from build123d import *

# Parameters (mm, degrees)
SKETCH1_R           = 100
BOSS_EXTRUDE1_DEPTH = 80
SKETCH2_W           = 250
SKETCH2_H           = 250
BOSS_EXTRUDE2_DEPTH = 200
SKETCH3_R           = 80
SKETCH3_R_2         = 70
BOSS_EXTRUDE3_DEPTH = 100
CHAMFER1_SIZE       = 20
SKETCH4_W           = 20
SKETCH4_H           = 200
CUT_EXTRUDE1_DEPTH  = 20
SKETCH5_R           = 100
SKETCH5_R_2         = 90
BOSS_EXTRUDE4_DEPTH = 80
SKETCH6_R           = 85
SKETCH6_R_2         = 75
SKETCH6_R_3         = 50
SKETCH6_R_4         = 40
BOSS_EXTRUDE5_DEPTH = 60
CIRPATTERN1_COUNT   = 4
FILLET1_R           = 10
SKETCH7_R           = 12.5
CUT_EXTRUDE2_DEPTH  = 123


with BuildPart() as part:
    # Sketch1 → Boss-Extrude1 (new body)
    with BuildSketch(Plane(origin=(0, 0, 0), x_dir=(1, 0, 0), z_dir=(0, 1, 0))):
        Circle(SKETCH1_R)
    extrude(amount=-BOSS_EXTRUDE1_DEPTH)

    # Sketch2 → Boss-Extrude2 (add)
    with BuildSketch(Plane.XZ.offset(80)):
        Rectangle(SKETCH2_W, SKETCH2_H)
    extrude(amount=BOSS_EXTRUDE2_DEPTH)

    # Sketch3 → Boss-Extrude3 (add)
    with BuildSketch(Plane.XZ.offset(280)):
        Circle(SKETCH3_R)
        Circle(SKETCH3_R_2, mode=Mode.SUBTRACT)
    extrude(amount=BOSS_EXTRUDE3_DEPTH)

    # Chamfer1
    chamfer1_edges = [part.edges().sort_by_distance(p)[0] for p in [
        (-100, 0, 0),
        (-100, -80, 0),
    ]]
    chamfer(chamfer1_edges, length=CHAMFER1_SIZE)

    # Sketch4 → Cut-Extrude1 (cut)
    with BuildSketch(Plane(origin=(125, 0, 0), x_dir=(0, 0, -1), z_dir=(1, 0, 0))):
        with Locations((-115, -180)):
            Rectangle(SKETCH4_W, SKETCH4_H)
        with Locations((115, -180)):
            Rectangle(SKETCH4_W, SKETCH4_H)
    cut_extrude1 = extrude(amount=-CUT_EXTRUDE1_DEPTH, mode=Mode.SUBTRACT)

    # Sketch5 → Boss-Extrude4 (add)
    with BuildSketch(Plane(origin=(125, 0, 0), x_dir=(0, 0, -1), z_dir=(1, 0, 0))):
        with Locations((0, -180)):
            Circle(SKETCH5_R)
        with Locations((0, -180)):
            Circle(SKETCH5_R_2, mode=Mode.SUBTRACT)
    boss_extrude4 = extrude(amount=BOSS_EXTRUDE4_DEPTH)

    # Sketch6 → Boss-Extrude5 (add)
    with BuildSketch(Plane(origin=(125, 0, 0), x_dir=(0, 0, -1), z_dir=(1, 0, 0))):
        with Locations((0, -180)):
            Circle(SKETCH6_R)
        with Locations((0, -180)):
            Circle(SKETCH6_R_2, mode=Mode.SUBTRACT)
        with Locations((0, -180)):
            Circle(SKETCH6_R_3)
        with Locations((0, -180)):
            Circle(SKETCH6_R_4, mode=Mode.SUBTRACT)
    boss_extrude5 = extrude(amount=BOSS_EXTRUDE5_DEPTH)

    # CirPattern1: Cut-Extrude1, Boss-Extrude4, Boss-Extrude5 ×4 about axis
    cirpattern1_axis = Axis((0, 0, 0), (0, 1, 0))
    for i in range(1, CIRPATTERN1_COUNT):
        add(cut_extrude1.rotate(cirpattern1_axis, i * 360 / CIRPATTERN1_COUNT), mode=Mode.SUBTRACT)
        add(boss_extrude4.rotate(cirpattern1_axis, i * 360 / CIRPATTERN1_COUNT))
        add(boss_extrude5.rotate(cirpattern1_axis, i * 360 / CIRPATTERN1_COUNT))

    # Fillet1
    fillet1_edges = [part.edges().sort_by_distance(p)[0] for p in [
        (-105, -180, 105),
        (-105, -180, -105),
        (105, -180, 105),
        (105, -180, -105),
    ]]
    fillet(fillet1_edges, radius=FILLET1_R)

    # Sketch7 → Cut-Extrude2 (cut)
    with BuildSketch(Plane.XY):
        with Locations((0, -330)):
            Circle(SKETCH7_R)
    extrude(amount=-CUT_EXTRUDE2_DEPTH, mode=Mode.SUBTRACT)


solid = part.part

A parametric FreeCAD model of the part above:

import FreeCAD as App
import Part
import Sketcher
from FreeCAD import Vector


def edges_at(feature, points):
    """Names of the edges that pass closest to the given points."""
    edges = feature.Shape.Edges
    near = lambda p: min(range(len(edges)), key=lambda i: edges[i].distToShape(Part.Vertex(*p))[0])
    return sorted({f"Edge{near(p) + 1}" for p in points})


def add_polygon(sketch, points):
    """Adds a closed chain of lines whose ends are joined by coincident constraints."""
    first, n = sketch.GeometryCount, len(points)
    for a, b in zip(points, points[1:] + points[:1]):
        sketch.addGeometry(Part.LineSegment(App.Vector(*a, 0), App.Vector(*b, 0)), False)
    for i in range(n):
        sketch.addConstraint(Sketcher.Constraint("Coincident", first + i, 2, first + (i + 1) % n, 1))

doc = App.newDocument("Part")
params = doc.addObject("Spreadsheet::Sheet", "Params")
for row, (alias, value) in enumerate([
    ("sketch1_diameter", "200 mm"),
    ("pad1_length", "80 mm"),
    ("sketch2_width", "250 mm"),
    ("pad2_length", "200 mm"),
    ("sketch3_diameter", "160 mm"),
    ("sketch3_diameter2", "140 mm"),
    ("pad3_length", "100 mm"),
    ("chamfer_size", "20 mm"),
    ("sketch4_width", "200 mm"),
    ("sketch4_height", "20 mm"),
    ("pocket1_length", "20 mm"),
    ("sketch5_diameter", "200 mm"),
    ("sketch5_diameter2", "180 mm"),
    ("pad4_length", "80 mm"),
    ("sketch6_diameter", "170 mm"),
    ("sketch6_diameter2", "150 mm"),
    ("sketch6_diameter3", "100 mm"),
    ("sketch6_diameter4", "80 mm"),
    ("pad5_length", "60 mm"),
    ("fillet_radius", "10 mm"),
    ("sketch7_diameter", "25 mm"),
    ("pocket2_length", "123 mm"),
], start=1):
    params.set(f"A{row}", alias)
    params.set(f"B{row}", "=" + value)
    params.setAlias(f"B{row}", alias)

body = doc.addObject("PartDesign::Body", "Body")

# Sketch on XZ plane
sketch1 = doc.addObject("Sketcher::SketchObject", "Sketch")
body.addObject(sketch1)
sketch1.AttachmentSupport = (doc.XZ_Plane, [""])
sketch1.MapMode = "FlatFace"
sketch1.addGeometry(Part.Circle(Vector(0, 0, 0), Vector(0, 0, 1), 100), False)
sketch1.addConstraint(Sketcher.Constraint("Coincident", 0, 3, -1, 1))
sketch1.addConstraint(Sketcher.Constraint("Diameter", 0, 200.0))
sketch1.setExpression("Constraints[1]", "Params.sketch1_diameter")
pad1 = doc.addObject("PartDesign::Pad", "Pad")
body.addObject(pad1)
pad1.Profile = sketch1
pad1.setExpression("Length", "Params.pad1_length")

# Sketch on XZ plane
sketch2 = doc.addObject("Sketcher::SketchObject", "Sketch001")
body.addObject(sketch2)
sketch2.AttachmentSupport = (doc.XZ_Plane, [""])
sketch2.MapMode = "FlatFace"
sketch2.AttachmentOffset = App.Placement(Vector(0, 0, 80), App.Rotation())
add_polygon(sketch2, [(-125, 125), (-125, -125), (125, -125), (125, 125)])  # lines 0-3
sketch2.addConstraint(Sketcher.Constraint("Vertical", 0))
sketch2.addConstraint(Sketcher.Constraint("Horizontal", 1))
sketch2.addConstraint(Sketcher.Constraint("Vertical", 2))
sketch2.addConstraint(Sketcher.Constraint("Horizontal", 3))
sketch2.addConstraint(Sketcher.Constraint("Symmetric", 0, 2, 2, 2, -1, 1))
sketch2.addConstraint(Sketcher.Constraint("Equal", 3, 0))
sketch2.addConstraint(Sketcher.Constraint("DistanceX", 1, 1, 1, 2, 250.0))
sketch2.setExpression("Constraints[10]", "Params.sketch2_width")
pad2 = doc.addObject("PartDesign::Pad", "Pad001")
body.addObject(pad2)
pad2.Profile = sketch2
pad2.setExpression("Length", "Params.pad2_length")

# Sketch on XZ plane
sketch3 = doc.addObject("Sketcher::SketchObject", "Sketch002")
body.addObject(sketch3)
sketch3.AttachmentSupport = (doc.XZ_Plane, [""])
sketch3.MapMode = "FlatFace"
sketch3.AttachmentOffset = App.Placement(Vector(0, 0, 280), App.Rotation())
sketch3.addGeometry(Part.Circle(Vector(0, 0, 0), Vector(0, 0, 1), 80), False)
sketch3.addGeometry(Part.Circle(Vector(0, 0, 0), Vector(0, 0, 1), 70), False)
sketch3.addConstraint(Sketcher.Constraint("Coincident", 0, 3, -1, 1))
sketch3.addConstraint(Sketcher.Constraint("Coincident", 1, 3, -1, 1))
sketch3.addConstraint(Sketcher.Constraint("Diameter", 0, 160.0))
sketch3.addConstraint(Sketcher.Constraint("Diameter", 1, 140.0))
sketch3.setExpression("Constraints[2]", "Params.sketch3_diameter")
sketch3.setExpression("Constraints[3]", "Params.sketch3_diameter2")
pad3 = doc.addObject("PartDesign::Pad", "Pad002")
body.addObject(pad3)
pad3.Profile = sketch3
pad3.setExpression("Length", "Params.pad3_length")
doc.recompute()

chamfer = doc.addObject("PartDesign::Chamfer", "Chamfer")
body.addObject(chamfer)
chamfer.Base = (pad3, edges_at(pad3, [(-100, 0, 0), (-100, -80, 0)]))
chamfer.setExpression("Size", "Params.chamfer_size")

# Sketch on YZ plane
sketch4 = doc.addObject("Sketcher::SketchObject", "Sketch003")
body.addObject(sketch4)
sketch4.AttachmentSupport = (doc.YZ_Plane, [""])
sketch4.MapMode = "FlatFace"
sketch4.AttachmentOffset = App.Placement(Vector(0, 0, 125), App.Rotation())
add_polygon(sketch4, [(-80, 125), (-280, 125), (-280, 105), (-80, 105)])  # lines 0-3
add_polygon(sketch4, [(-80, -105), (-280, -105), (-280, -125), (-80, -125)])  # lines 4-7
sketch4.addConstraint(Sketcher.Constraint("Horizontal", 0))
sketch4.addConstraint(Sketcher.Constraint("Vertical", 1))
sketch4.addConstraint(Sketcher.Constraint("Horizontal", 2))
sketch4.addConstraint(Sketcher.Constraint("Vertical", 3))
sketch4.addConstraint(Sketcher.Constraint("Horizontal", 4))
sketch4.addConstraint(Sketcher.Constraint("Vertical", 5))
sketch4.addConstraint(Sketcher.Constraint("Horizontal", 6))
sketch4.addConstraint(Sketcher.Constraint("Vertical", 7))
sketch4.addConstraint(Sketcher.Constraint("Symmetric", 1, 2, 4, 2, -1))
sketch4.addConstraint(Sketcher.Constraint("Symmetric", 3, 2, 6, 2, -1))
sketch4.addConstraint(Sketcher.Constraint("DistanceX", 0, 2, 0, 1, 200.0))
sketch4.addConstraint(Sketcher.Constraint("DistanceY", 1, 2, 1, 1, 20.0))
sketch4.addConstraint(Sketcher.Constraint("DistanceX", 0, 2, -1, 1, 280.0))
sketch4.addConstraint(Sketcher.Constraint("DistanceY", -1, 1, 0, 2, 125.0))
sketch4.setExpression("Constraints[18]", "Params.sketch4_width")
sketch4.setExpression("Constraints[19]", "Params.sketch4_height")
pocket1 = doc.addObject("PartDesign::Pocket", "Pocket")
body.addObject(pocket1)
pocket1.Profile = sketch4
pocket1.setExpression("Length", "Params.pocket1_length")

# Sketch on YZ plane
sketch5 = doc.addObject("Sketcher::SketchObject", "Sketch004")
body.addObject(sketch5)
sketch5.AttachmentSupport = (doc.YZ_Plane, [""])
sketch5.MapMode = "FlatFace"
sketch5.AttachmentOffset = App.Placement(Vector(0, 0, 125), App.Rotation())
sketch5.addGeometry(Part.Circle(Vector(-180, 0, 0), Vector(0, 0, 1), 100), False)
sketch5.addGeometry(Part.Circle(Vector(-180, 0, 0), Vector(0, 0, 1), 90), False)
sketch5.addConstraint(Sketcher.Constraint("Coincident", 1, 3, 0, 3))
sketch5.addConstraint(Sketcher.Constraint("PointOnObject", 0, 3, -1))
sketch5.addConstraint(Sketcher.Constraint("Diameter", 0, 200.0))
sketch5.addConstraint(Sketcher.Constraint("Diameter", 1, 180.0))
sketch5.addConstraint(Sketcher.Constraint("DistanceX", 0, 3, -1, 1, 180.0))
sketch5.setExpression("Constraints[2]", "Params.sketch5_diameter")
sketch5.setExpression("Constraints[3]", "Params.sketch5_diameter2")
pad4 = doc.addObject("PartDesign::Pad", "Pad003")
body.addObject(pad4)
pad4.Profile = sketch5
pad4.setExpression("Length", "Params.pad4_length")

# Sketch on YZ plane
sketch6 = doc.addObject("Sketcher::SketchObject", "Sketch005")
body.addObject(sketch6)
sketch6.AttachmentSupport = (doc.YZ_Plane, [""])
sketch6.MapMode = "FlatFace"
sketch6.AttachmentOffset = App.Placement(Vector(0, 0, 125), App.Rotation())
sketch6.addGeometry(Part.Circle(Vector(-180, 0, 0), Vector(0, 0, 1), 85), False)
sketch6.addGeometry(Part.Circle(Vector(-180, 0, 0), Vector(0, 0, 1), 75), False)
sketch6.addGeometry(Part.Circle(Vector(-180, 0, 0), Vector(0, 0, 1), 50), False)
sketch6.addGeometry(Part.Circle(Vector(-180, 0, 0), Vector(0, 0, 1), 40), False)
sketch6.addConstraint(Sketcher.Constraint("Coincident", 1, 3, 0, 3))
sketch6.addConstraint(Sketcher.Constraint("Coincident", 2, 3, 0, 3))
sketch6.addConstraint(Sketcher.Constraint("Coincident", 3, 3, 0, 3))
sketch6.addConstraint(Sketcher.Constraint("PointOnObject", 0, 3, -1))
sketch6.addConstraint(Sketcher.Constraint("Diameter", 0, 170.0))
sketch6.addConstraint(Sketcher.Constraint("Diameter", 1, 150.0))
sketch6.addConstraint(Sketcher.Constraint("Diameter", 2, 100.0))
sketch6.addConstraint(Sketcher.Constraint("Diameter", 3, 80.0))
sketch6.addConstraint(Sketcher.Constraint("DistanceX", 0, 3, -1, 1, 180.0))
sketch6.setExpression("Constraints[4]", "Params.sketch6_diameter")
sketch6.setExpression("Constraints[5]", "Params.sketch6_diameter2")
sketch6.setExpression("Constraints[6]", "Params.sketch6_diameter3")
sketch6.setExpression("Constraints[7]", "Params.sketch6_diameter4")
pad5 = doc.addObject("PartDesign::Pad", "Pad004")
body.addObject(pad5)
pad5.Profile = sketch6
pad5.setExpression("Length", "Params.pad5_length")
doc.recompute()

polarpattern = doc.addObject("PartDesign::PolarPattern", "PolarPattern")
body.addObject(polarpattern)
polarpattern.Originals = [pocket1, pad4, pad5]
polarpattern.Axis = (doc.Y_Axis, [""])
polarpattern.Angle = 360
polarpattern.Occurrences = 4
body.Tip = polarpattern
doc.recompute()

fillet = doc.addObject("PartDesign::Fillet", "Fillet")
body.addObject(fillet)
fillet.Base = (polarpattern, edges_at(polarpattern, [
    (-105, -180, 105),
    (-105, -180, -105),
    (105, -180, 105),
    (105, -180, -105),
]))
fillet.setExpression("Radius", "Params.fillet_radius")

# Sketch on XY plane
sketch7 = doc.addObject("Sketcher::SketchObject", "Sketch006")
body.addObject(sketch7)
sketch7.AttachmentSupport = (doc.XY_Plane, [""])
sketch7.MapMode = "FlatFace"
sketch7.addGeometry(Part.Circle(Vector(0, -330, 0), Vector(0, 0, 1), 12), False)
sketch7.addConstraint(Sketcher.Constraint("PointOnObject", 0, 3, -2))
sketch7.addConstraint(Sketcher.Constraint("Diameter", 0, 25.0))
sketch7.addConstraint(Sketcher.Constraint("DistanceY", 0, 3, -1, 1, 330.0))
sketch7.setExpression("Constraints[1]", "Params.sketch7_diameter")
pocket2 = doc.addObject("PartDesign::Pocket", "Pocket001")
body.addObject(pocket2)
pocket2.Profile = sketch7
pocket2.setExpression("Length", "Params.pocket2_length")

doc.recompute()
